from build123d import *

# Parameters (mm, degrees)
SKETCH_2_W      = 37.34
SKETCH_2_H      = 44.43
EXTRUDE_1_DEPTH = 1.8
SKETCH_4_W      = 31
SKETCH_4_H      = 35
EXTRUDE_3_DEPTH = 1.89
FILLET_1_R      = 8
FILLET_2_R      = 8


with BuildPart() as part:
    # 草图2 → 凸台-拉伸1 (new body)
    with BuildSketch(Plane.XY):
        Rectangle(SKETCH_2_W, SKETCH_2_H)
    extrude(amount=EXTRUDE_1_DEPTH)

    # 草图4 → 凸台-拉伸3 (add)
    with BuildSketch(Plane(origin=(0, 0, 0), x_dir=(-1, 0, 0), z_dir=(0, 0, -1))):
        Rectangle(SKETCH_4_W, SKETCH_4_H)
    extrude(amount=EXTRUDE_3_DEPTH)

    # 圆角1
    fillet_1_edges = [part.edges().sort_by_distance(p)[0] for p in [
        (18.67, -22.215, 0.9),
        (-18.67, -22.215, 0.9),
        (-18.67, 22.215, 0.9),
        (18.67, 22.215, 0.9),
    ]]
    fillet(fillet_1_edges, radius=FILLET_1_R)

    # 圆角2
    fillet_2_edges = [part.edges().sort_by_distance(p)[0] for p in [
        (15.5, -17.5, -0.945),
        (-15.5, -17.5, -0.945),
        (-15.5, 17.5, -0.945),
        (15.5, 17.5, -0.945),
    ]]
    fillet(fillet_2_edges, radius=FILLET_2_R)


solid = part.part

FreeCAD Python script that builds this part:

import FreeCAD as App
import Part
import Sketcher
from FreeCAD import Vector


def edges_at(feature, points):
    """Names of the edges that pass closest to the given points."""
    edges = feature.Shape.Edges
    near = lambda p: min(range(len(edges)), key=lambda i: edges[i].distToShape(Part.Vertex(*p))[0])
    return sorted({f"Edge{near(p) + 1}" for p in points})

doc = App.newDocument("Part")
body = doc.addObject("PartDesign::Body", "Body")

sketch1 = doc.addObject("Sketcher::SketchObject", "Sketch")
body.addObject(sketch1)
sketch1.AttachmentSupport = (doc.XY_Plane, [""])
sketch1.MapMode = "FlatFace"
sketch1.addGeometry([
    Part.LineSegment(Vector(-18.67, 22.215, 0), Vector(-18.67, -22.215, 0)),
    Part.LineSegment(Vector(-18.67, -22.215, 0), Vector(18.67, -22.215, 0)),
    Part.LineSegment(Vector(18.67, -22.215, 0), Vector(18.67, 22.215, 0)),
    Part.LineSegment(Vector(18.67, 22.215, 0), Vector(-18.67, 22.215, 0)),
], False)
sketch1.addConstraint([
    Sketcher.Constraint("Coincident", 0, 2, 1, 1),
    Sketcher.Constraint("Coincident", 1, 2, 2, 1),
    Sketcher.Constraint("Coincident", 2, 2, 3, 1),
    Sketcher.Constraint("Coincident", 3, 2, 0, 1),
    Sketcher.Constraint("Vertical", 0),
    Sketcher.Constraint("Horizontal", 1),
    Sketcher.Constraint("Vertical", 2),
    Sketcher.Constraint("Horizontal", 3),
    Sketcher.Constraint("Symmetric", 0, 2, 2, 2, -1, 1),
    Sketcher.Constraint("DistanceX", 1, 1, 1, 2, 37.34),
    Sketcher.Constraint("DistanceY", 0, 2, 0, 1, 44.43),
])
pad1 = doc.addObject("PartDesign::Pad", "Pad")
body.addObject(pad1)
pad1.Profile = sketch1
pad1.Length = 1.8

sketch2 = doc.addObject("Sketcher::SketchObject", "Sketch001")
body.addObject(sketch2)
sketch2.AttachmentSupport = (doc.XY_Plane, [""])
sketch2.MapMode = "FlatFace"
sketch2.addGeometry([
    Part.LineSegment(Vector(15.5, 17.5, 0), Vector(15.5, -17.5, 0)),
    Part.LineSegment(Vector(15.5, -17.5, 0), Vector(-15.5, -17.5, 0)),
    Part.LineSegment(Vector(-15.5, -17.5, 0), Vector(-15.5, 17.5, 0)),
    Part.LineSegment(Vector(-15.5, 17.5, 0), Vector(15.5, 17.5, 0)),
], False)
sketch2.addConstraint([
    Sketcher.Constraint("Coincident", 0, 2, 1, 1),
    Sketcher.Constraint("Coincident", 1, 2, 2, 1),
    Sketcher.Constraint("Coincident", 2, 2, 3, 1),
    Sketcher.Constraint("Coincident", 3, 2, 0, 1),
    Sketcher.Constraint("Vertical", 0),
    Sketcher.Constraint("Horizontal", 1),
    Sketcher.Constraint("Vertical", 2),
    Sketcher.Constraint("Horizontal", 3),
    Sketcher.Constraint("Symmetric", 0, 2, 2, 2, -1, 1),
    Sketcher.Constraint("DistanceX", 1, 2, 1, 1, 31.0),
    Sketcher.Constraint("DistanceY", 0, 2, 0, 1, 35.0),
])
pad2 = doc.addObject("PartDesign::Pad", "Pad001")
body.addObject(pad2)
pad2.Profile = sketch2
pad2.Length = 1.89
pad2.Reversed = True
doc.recompute()

fillet = doc.addObject("PartDesign::Fillet", "Fillet")
body.addObject(fillet)
fillet.Base = (pad2, edges_at(pad2, [
    (18.67, -22.215, 0.9),
    (-18.67, -22.215, 0.9),
    (-18.67, 22.215, 0.9),
    (18.67, 22.215, 0.9),
]))
fillet.Radius = 8
doc.recompute()

fillet2 = doc.addObject("PartDesign::Fillet", "Fillet001")
body.addObject(fillet2)
fillet2.Base = (fillet, edges_at(fillet, [
    (15.5, -17.5, -0.945),
    (-15.5, -17.5, -0.945),
    (-15.5, 17.5, -0.945),
    (15.5, 17.5, -0.945),
]))
fillet2.Radius = 8

doc.recompute()
